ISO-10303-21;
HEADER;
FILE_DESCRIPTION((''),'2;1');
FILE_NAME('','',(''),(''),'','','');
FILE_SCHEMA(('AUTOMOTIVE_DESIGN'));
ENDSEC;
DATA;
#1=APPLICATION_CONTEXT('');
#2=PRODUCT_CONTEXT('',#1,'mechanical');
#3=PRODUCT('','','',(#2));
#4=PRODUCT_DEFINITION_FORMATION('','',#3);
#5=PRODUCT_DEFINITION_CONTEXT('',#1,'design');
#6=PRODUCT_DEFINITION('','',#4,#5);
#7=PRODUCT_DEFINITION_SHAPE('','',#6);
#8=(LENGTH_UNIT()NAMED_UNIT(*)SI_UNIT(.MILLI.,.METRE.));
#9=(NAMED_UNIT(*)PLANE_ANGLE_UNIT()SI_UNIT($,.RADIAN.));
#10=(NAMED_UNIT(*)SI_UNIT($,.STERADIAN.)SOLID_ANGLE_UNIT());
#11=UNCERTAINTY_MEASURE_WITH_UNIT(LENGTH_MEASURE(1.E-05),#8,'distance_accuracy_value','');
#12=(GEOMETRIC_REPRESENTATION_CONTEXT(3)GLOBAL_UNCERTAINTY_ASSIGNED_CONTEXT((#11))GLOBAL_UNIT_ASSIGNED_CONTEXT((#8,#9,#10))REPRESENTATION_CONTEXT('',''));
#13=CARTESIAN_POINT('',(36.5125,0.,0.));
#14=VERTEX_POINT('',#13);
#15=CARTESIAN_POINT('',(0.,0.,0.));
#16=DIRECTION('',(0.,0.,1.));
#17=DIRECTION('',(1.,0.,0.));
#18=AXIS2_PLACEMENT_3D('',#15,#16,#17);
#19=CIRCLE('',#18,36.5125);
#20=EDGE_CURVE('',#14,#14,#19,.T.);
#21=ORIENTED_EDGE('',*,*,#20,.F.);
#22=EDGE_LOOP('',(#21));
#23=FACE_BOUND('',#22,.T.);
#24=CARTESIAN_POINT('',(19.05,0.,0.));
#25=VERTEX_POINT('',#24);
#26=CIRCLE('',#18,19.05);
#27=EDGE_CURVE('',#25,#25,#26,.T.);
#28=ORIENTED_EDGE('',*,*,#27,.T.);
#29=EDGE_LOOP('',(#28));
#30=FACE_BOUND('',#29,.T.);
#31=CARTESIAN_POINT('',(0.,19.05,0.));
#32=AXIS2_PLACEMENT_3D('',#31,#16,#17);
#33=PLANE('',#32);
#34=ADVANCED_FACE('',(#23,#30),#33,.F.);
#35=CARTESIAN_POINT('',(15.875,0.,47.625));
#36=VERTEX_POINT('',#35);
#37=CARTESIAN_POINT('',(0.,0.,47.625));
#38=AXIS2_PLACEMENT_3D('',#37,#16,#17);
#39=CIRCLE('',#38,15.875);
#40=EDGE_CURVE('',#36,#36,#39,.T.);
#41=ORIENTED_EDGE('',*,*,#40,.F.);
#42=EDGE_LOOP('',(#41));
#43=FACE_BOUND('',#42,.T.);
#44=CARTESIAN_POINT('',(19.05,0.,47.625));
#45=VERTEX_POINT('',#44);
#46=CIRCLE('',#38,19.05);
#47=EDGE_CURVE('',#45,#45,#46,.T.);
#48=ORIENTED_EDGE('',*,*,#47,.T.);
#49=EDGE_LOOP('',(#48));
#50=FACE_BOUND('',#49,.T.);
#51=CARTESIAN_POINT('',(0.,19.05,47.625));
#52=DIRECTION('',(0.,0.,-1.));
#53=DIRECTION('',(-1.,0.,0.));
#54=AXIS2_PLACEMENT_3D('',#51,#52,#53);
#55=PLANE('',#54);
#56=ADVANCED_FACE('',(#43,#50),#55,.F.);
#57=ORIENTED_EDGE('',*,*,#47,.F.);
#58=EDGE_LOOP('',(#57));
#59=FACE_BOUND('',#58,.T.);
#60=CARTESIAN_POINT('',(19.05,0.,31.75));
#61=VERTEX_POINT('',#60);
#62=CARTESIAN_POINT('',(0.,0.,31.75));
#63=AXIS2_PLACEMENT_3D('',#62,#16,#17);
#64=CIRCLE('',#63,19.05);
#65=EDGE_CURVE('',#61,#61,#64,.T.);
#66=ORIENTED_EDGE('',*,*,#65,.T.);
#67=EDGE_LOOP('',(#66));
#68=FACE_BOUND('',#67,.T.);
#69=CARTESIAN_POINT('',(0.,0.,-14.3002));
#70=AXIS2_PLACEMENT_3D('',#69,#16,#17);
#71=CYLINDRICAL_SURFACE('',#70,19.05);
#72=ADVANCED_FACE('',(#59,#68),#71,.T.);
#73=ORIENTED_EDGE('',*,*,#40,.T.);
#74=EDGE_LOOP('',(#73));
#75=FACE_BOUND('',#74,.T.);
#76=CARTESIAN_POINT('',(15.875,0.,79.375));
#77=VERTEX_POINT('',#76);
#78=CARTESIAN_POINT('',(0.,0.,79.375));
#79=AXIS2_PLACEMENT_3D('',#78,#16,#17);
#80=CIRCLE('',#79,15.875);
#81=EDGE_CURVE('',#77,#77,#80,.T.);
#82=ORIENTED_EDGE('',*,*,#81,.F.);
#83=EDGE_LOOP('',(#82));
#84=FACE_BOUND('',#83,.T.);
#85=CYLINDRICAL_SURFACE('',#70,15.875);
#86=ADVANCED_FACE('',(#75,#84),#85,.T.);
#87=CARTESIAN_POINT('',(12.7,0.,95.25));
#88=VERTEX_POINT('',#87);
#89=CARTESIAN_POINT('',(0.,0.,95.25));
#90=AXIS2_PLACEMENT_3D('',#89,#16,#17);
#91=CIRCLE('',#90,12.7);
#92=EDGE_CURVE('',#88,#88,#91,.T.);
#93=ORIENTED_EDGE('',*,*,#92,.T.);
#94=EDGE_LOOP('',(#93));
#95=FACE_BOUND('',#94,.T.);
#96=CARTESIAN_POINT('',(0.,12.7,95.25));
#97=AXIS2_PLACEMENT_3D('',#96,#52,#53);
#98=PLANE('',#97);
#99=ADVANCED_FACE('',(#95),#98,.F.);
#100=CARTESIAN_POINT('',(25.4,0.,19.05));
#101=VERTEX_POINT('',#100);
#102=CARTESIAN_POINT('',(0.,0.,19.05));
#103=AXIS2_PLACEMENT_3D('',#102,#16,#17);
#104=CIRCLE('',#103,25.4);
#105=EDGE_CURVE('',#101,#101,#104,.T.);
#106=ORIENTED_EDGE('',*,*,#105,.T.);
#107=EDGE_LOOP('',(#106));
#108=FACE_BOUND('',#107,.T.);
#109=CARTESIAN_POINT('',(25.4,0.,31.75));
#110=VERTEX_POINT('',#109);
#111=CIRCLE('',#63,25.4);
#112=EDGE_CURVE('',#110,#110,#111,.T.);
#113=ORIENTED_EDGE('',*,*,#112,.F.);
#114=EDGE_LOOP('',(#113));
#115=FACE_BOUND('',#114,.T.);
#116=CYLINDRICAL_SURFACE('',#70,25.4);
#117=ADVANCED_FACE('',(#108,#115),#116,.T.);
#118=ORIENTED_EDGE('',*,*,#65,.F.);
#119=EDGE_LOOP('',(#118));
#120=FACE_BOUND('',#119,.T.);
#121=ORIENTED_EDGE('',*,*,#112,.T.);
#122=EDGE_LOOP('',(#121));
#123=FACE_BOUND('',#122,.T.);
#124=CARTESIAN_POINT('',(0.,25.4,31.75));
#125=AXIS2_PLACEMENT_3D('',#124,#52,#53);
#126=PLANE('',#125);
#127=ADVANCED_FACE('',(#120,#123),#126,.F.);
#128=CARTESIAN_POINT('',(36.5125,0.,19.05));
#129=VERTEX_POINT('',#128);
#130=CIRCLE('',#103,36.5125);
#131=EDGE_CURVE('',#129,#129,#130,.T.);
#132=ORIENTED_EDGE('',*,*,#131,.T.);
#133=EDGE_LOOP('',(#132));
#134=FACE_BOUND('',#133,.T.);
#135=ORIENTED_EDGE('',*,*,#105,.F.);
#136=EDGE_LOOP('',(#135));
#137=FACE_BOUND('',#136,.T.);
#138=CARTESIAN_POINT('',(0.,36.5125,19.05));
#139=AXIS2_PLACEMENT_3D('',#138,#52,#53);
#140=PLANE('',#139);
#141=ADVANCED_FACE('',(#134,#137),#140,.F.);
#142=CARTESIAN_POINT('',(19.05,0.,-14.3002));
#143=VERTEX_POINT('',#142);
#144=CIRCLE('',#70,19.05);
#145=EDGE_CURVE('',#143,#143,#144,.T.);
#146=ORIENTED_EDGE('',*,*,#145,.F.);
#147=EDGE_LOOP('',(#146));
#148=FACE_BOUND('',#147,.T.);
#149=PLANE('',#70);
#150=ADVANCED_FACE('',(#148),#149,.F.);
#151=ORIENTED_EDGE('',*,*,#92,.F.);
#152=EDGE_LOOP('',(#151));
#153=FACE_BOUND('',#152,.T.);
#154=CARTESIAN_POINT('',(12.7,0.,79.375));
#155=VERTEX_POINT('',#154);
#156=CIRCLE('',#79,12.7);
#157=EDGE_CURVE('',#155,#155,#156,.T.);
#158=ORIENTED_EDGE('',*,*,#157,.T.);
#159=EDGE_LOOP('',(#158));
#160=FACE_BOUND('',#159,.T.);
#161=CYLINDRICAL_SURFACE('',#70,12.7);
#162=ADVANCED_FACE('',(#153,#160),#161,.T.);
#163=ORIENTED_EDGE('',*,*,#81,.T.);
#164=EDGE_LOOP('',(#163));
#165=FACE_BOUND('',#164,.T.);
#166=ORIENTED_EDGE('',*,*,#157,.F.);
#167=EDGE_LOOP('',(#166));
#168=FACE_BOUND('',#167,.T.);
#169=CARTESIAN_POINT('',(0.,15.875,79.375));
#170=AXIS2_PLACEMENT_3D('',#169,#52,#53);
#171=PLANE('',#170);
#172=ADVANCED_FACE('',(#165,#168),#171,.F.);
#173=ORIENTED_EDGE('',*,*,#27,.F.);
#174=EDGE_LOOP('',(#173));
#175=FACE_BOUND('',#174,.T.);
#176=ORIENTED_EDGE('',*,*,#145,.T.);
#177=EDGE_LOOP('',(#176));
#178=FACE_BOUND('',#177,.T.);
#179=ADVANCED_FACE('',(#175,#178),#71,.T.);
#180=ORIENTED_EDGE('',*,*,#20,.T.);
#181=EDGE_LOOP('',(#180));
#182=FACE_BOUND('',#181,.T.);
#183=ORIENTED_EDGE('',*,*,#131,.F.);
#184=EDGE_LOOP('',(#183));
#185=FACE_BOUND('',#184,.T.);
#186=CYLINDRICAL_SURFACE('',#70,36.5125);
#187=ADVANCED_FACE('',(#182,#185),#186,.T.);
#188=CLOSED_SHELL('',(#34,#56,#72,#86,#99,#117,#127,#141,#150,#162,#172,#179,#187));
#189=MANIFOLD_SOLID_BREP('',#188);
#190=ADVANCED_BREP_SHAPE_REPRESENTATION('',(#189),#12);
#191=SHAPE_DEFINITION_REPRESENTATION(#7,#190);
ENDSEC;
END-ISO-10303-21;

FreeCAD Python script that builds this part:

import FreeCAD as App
import Part
import Sketcher
from FreeCAD import Vector
Q = App.Units.Quantity

doc = App.newDocument("Part")
params = doc.addObject("Spreadsheet::Sheet", "Params")
for row, (alias, value) in enumerate([
    ("sketch1_width", "0.5 in"),
    ("sketch1_width2", "0.25 in"),
    ("sketch1_height", "1.25 in"),
    ("sketch1_width3", "0.6875 in"),
    ("sketch1_height2", "0.563 in"),
    ("revolution_angle", "360 deg"),
], start=1):
    params.set(f"A{row}", alias)
    params.set(f"B{row}", "=" + value)
    params.setAlias(f"B{row}", alias)

body = doc.addObject("PartDesign::Body", "Body")

# Sketch on YZ plane
sketch1 = doc.addObject("Sketcher::SketchObject", "Sketch")
body.addObject(sketch1)
sketch1.AttachmentSupport = (doc.YZ_Plane, [""])
sketch1.MapMode = "FlatFace"
sketch1.addGeometry([
    Part.LineSegment(Vector(19.05, -14.3002, 0), Vector(19.05, 0, 0)),  # 0
    Part.LineSegment(Vector(19.05, 0, 0), Vector(36.5125, 0, 0)),  # 1
    Part.LineSegment(Vector(36.5125, 0, 0), Vector(36.5125, 19.05, 0)),  # 2
    Part.LineSegment(Vector(36.5125, 19.05, 0), Vector(25.4, 19.05, 0)),  # 3
    Part.LineSegment(Vector(25.4, 19.05, 0), Vector(25.4, 31.75, 0)),  # 4
    Part.LineSegment(Vector(25.4, 31.75, 0), Vector(19.05, 31.75, 0)),  # 5
    Part.LineSegment(Vector(19.05, 31.75, 0), Vector(19.05, 47.625, 0)),  # 6
    Part.LineSegment(Vector(19.05, 47.625, 0), Vector(15.875, 47.625, 0)),  # 7
    Part.LineSegment(Vector(15.875, 47.625, 0), Vector(15.875, 79.375, 0)),  # 8
    Part.LineSegment(Vector(15.875, 79.375, 0), Vector(12.7, 79.375, 0)),  # 9
    Part.LineSegment(Vector(12.7, 79.375, 0), Vector(12.7, 95.25, 0)),  # 10
    Part.LineSegment(Vector(12.7, 95.25, 0), Vector(0, 95.25, 0)),  # 11
    Part.LineSegment(Vector(0, 95.25, 0), Vector(0, -14.3002, 0)),  # 12
    Part.LineSegment(Vector(0, -14.3002, 0), Vector(19.05, -14.3002, 0)),  # 13
], False)
sketch1.addConstraint([
    Sketcher.Constraint("Coincident", 0, 2, 1, 1),
    Sketcher.Constraint("Coincident", 1, 2, 2, 1),
    Sketcher.Constraint("Coincident", 2, 2, 3, 1),
    Sketcher.Constraint("Coincident", 3, 2, 4, 1),
    Sketcher.Constraint("Coincident", 4, 2, 5, 1),
    Sketcher.Constraint("Coincident", 5, 2, 6, 1),
    Sketcher.Constraint("Coincident", 6, 2, 7, 1),
    Sketcher.Constraint("Coincident", 7, 2, 8, 1),
    Sketcher.Constraint("Coincident", 8, 2, 9, 1),
    Sketcher.Constraint("Coincident", 9, 2, 10, 1),
    Sketcher.Constraint("Coincident", 10, 2, 11, 1),
    Sketcher.Constraint("Coincident", 11, 2, 12, 1),
    Sketcher.Constraint("Coincident", 12, 2, 13, 1),
    Sketcher.Constraint("Coincident", 13, 2, 0, 1),
    Sketcher.Constraint("Vertical", 0),
    Sketcher.Constraint("Horizontal", 1),
    Sketcher.Constraint("Vertical", 2),
    Sketcher.Constraint("Horizontal", 3),
    Sketcher.Constraint("Vertical", 4),
    Sketcher.Constraint("Horizontal", 5),
    Sketcher.Constraint("Vertical", 6),
    Sketcher.Constraint("Horizontal", 7),
    Sketcher.Constraint("Vertical", 8),
    Sketcher.Constraint("Horizontal", 9),
    Sketcher.Constraint("Vertical", 10),
    Sketcher.Constraint("Horizontal", 11),
    Sketcher.Constraint("Vertical", 12),
    Sketcher.Constraint("Horizontal", 13),
    Sketcher.Constraint("PointOnObject", 0, 2, -1),
    Sketcher.Constraint("PointOnObject", 11, 2, -2),
    Sketcher.Constraint("Vertical", 0, 2, 5, 2),
    Sketcher.Constraint("Equal", 7, 9),
    Sketcher.Constraint("Equal", 13, 2),
    Sketcher.Constraint("Equal", 11, 4),
    Sketcher.Constraint("Equal", 6, 10),
    Sketcher.Constraint("DistanceX", 11, 2, 11, 1, Q("0.5 in")),
    Sketcher.Constraint("DistanceX", -1, 1, 3, 2, Q("1 in")),
    Sketcher.Constraint("DistanceX", 5, 2, 5, 1, Q("0.25 in")),
    Sketcher.Constraint("DistanceY", 8, 1, 8, 2, Q("1.25 in")),
    Sketcher.Constraint("DistanceY", 5, 2, 10, 2, Q("2.5 in")),
    Sketcher.Constraint("DistanceX", 1, 1, 1, 2, Q("0.6875 in")),
    Sketcher.Constraint("DistanceY", 0, 1, 0, 2, Q("0.563 in")),
])
sketch1.setExpression("Constraints[35]", "Params.sketch1_width")
sketch1.setExpression("Constraints[37]", "Params.sketch1_width2")
sketch1.setExpression("Constraints[38]", "Params.sketch1_height")
sketch1.setExpression("Constraints[40]", "Params.sketch1_width3")
sketch1.setExpression("Constraints[41]", "Params.sketch1_height2")
revolution = doc.addObject("PartDesign::Revolution", "Revolution")
body.addObject(revolution)
revolution.Profile = sketch1
revolution.ReferenceAxis = (sketch1, ["V_Axis"])
revolution.setExpression("Angle", "Params.revolution_angle")

doc.recompute()
